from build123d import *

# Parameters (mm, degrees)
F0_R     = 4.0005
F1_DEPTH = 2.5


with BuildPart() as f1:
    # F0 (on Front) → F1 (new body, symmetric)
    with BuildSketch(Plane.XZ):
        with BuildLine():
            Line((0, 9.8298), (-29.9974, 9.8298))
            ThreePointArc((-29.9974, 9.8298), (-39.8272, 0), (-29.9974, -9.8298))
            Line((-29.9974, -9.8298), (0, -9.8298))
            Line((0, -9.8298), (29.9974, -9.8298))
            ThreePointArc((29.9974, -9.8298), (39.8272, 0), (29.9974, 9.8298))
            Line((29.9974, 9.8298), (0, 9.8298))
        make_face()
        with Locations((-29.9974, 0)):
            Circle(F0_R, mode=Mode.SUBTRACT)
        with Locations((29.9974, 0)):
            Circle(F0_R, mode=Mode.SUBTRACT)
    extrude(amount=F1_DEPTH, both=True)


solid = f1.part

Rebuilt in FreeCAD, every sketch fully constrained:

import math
import FreeCAD as App
import Part
import Sketcher
from FreeCAD import Vector
Q = App.Units.Quantity

doc = App.newDocument("Part")
params = doc.addObject("Spreadsheet::Sheet", "Params")
for row, (alias, value) in enumerate([
    ("sketch1_diameter", "0.315 in"),
    ("sketch1_radius", "0.387 in"),
    ("sketch1_width", "2.362 in"),
    ("pad1_length", "5 mm"),
], start=1):
    params.set(f"A{row}", alias)
    params.set(f"B{row}", "=" + value)
    params.setAlias(f"B{row}", alias)

body = doc.addObject("PartDesign::Body", "Body")

# Sketch on XZ plane
sketch1 = body.newObject("Sketcher::SketchObject", "Sketch")
sketch1.AttachmentSupport = (doc.getObject("XZ_Plane"), [""])
sketch1.MapMode = "FlatFace"
sketch1.addGeometry(Part.ArcOfCircle(Part.Circle(Vector(-30, 0, 0), Vector(0, 0, 1), 9.8), math.radians(90), math.radians(270)), False)
sketch1.addGeometry(Part.LineSegment(Vector(-30, -9.8, 0), Vector(30, -9.8, 0)), False)
sketch1.addGeometry(Part.ArcOfCircle(Part.Circle(Vector(30, 0, 0), Vector(0, 0, 1), 9.8), math.radians(-90), math.radians(90)), False)
sketch1.addGeometry(Part.LineSegment(Vector(30, 9.8, 0), Vector(-30, 9.8, 0)), False)
sketch1.addGeometry(Part.Circle(Vector(-30, 0, 0), Vector(0, 0, 1), 4), False)
sketch1.addGeometry(Part.Circle(Vector(30, 0, 0), Vector(0, 0, 1), 4), False)
sketch1.addConstraint(Sketcher.Constraint("Tangent", 0, 2, 1, 1))
sketch1.addConstraint(Sketcher.Constraint("Tangent", 1, 2, 2, 1))
sketch1.addConstraint(Sketcher.Constraint("Tangent", 2, 2, 3, 1))
sketch1.addConstraint(Sketcher.Constraint("Tangent", 3, 2, 0, 1))
sketch1.addConstraint(Sketcher.Constraint("Horizontal", 1))
sketch1.addConstraint(Sketcher.Constraint("Horizontal", 3))
sketch1.addConstraint(Sketcher.Constraint("Coincident", 4, 3, 0, 3))
sketch1.addConstraint(Sketcher.Constraint("Coincident", 5, 3, 2, 3))
sketch1.addConstraint(Sketcher.Constraint("Equal", 4, 5))
sketch1.addConstraint(Sketcher.Constraint("Symmetric", 0, 3, 2, 3, -1, 1))
sketch1.addConstraint(Sketcher.Constraint("Diameter", 4, Q("0.315 in")))
sketch1.addConstraint(Sketcher.Constraint("Radius", 0, Q("0.387 in")))
sketch1.addConstraint(Sketcher.Constraint("DistanceX", 1, 1, 1, 2, Q("2.362 in")))
sketch1.setExpression("Constraints[10]", "Params.sketch1_diameter")
sketch1.setExpression("Constraints[11]", "Params.sketch1_radius")
sketch1.setExpression("Constraints[12]", "Params.sketch1_width")
pad1 = body.newObject("PartDesign::Pad", "Pad")
pad1.Profile = sketch1
pad1.setExpression("Length", "Params.pad1_length")
pad1.Midplane = True

doc.recompute()
